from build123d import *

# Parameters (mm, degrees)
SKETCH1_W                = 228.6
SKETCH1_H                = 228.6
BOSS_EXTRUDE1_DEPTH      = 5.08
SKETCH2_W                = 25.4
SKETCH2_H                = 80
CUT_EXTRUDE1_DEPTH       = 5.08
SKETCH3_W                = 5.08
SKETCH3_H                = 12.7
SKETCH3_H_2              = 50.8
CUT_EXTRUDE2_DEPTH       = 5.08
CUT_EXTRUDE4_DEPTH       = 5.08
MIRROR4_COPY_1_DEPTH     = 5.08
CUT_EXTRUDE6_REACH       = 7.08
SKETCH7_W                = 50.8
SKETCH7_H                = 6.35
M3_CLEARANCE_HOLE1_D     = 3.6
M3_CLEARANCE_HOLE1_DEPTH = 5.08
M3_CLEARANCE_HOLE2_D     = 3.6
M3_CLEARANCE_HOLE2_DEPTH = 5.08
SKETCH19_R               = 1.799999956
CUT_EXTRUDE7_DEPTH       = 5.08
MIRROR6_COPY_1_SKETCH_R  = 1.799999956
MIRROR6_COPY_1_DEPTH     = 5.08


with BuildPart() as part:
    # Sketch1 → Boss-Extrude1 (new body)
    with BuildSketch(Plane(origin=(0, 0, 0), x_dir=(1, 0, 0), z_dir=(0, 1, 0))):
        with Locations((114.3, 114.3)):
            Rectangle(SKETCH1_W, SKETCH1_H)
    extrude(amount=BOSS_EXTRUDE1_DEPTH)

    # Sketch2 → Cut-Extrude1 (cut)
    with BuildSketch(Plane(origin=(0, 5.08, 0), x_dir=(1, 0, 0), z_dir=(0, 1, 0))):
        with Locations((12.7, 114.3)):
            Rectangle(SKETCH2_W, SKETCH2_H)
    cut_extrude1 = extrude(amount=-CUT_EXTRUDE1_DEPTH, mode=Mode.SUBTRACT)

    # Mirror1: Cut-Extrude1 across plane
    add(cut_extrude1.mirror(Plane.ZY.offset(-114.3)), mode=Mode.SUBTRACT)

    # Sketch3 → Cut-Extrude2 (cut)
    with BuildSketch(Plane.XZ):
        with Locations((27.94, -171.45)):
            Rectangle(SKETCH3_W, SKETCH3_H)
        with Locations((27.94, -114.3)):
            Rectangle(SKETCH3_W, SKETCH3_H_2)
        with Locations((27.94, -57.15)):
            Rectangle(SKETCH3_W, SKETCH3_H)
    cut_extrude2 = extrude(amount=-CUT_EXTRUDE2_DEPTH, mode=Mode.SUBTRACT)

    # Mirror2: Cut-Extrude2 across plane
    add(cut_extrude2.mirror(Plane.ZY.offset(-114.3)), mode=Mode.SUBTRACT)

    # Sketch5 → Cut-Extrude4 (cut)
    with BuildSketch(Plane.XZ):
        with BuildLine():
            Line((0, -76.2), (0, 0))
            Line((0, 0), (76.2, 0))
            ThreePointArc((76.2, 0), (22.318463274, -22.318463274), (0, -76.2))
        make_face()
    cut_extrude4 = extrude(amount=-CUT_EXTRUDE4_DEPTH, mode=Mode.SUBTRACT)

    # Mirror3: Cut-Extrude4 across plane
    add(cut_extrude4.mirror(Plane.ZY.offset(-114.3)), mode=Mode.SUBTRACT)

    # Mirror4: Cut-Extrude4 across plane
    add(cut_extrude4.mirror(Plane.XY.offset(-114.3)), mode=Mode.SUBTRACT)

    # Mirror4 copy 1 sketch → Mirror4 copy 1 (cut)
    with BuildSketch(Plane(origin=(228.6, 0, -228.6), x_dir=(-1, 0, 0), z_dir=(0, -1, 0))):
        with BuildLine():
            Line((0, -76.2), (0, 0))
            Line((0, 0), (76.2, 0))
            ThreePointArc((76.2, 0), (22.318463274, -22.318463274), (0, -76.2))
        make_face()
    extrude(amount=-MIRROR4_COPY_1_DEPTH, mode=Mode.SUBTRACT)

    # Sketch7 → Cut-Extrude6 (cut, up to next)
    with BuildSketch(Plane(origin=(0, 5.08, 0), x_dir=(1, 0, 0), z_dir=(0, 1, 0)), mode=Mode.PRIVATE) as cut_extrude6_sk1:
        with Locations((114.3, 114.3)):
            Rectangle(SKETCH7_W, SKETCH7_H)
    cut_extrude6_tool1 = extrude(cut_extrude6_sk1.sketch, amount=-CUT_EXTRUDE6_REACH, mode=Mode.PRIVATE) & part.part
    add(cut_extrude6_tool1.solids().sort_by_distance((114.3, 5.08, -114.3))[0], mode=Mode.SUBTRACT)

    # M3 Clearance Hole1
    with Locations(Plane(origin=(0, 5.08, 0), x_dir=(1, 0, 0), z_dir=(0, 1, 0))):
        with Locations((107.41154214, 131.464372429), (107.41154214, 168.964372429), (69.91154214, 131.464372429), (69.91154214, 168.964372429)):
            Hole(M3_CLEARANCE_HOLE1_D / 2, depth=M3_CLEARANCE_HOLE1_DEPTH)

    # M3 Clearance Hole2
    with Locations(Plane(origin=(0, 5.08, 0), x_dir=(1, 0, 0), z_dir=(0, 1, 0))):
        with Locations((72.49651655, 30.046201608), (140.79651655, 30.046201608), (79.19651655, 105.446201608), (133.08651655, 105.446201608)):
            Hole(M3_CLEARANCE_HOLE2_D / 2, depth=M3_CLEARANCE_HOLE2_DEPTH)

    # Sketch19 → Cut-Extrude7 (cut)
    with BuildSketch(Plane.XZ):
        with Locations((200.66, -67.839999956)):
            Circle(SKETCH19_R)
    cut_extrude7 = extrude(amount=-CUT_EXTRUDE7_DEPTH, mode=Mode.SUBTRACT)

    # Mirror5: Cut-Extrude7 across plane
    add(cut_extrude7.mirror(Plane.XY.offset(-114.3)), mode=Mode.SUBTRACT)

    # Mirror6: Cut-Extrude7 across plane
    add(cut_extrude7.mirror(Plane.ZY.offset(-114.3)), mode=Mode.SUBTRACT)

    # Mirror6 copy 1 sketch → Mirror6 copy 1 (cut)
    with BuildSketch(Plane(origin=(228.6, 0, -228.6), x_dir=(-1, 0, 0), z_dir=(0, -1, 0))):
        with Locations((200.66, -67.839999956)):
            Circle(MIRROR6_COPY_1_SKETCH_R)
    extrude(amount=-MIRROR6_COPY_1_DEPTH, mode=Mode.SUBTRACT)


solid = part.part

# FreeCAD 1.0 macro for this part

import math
import FreeCAD as App
import Part
import Sketcher
from FreeCAD import Vector
Q = App.Units.Quantity

doc = App.newDocument("Part")
body = doc.addObject("PartDesign::Body", "Body")

sketch1 = body.newObject("Sketcher::SketchObject", "Sketch")
sketch1.AttachmentSupport = (doc.getObject("XZ_Plane"), [""])
sketch1.MapMode = "FlatFace"
sketch1.addGeometry(Part.LineSegment(Vector(0, -228.6, 0), Vector(0, 0, 0)), False)
sketch1.addGeometry(Part.LineSegment(Vector(0, 0, 0), Vector(228.6, 0, 0)), False)
sketch1.addGeometry(Part.LineSegment(Vector(228.6, 0, 0), Vector(228.6, -228.6, 0)), False)
sketch1.addGeometry(Part.LineSegment(Vector(228.6, -228.6, 0), Vector(0, -228.6, 0)), False)
sketch1.addConstraint(Sketcher.Constraint("Coincident", 0, 2, 1, 1))
sketch1.addConstraint(Sketcher.Constraint("Coincident", 1, 2, 2, 1))
sketch1.addConstraint(Sketcher.Constraint("Coincident", 2, 2, 3, 1))
sketch1.addConstraint(Sketcher.Constraint("Coincident", 3, 2, 0, 1))
sketch1.addConstraint(Sketcher.Constraint("Vertical", 0))
sketch1.addConstraint(Sketcher.Constraint("Horizontal", 1))
sketch1.addConstraint(Sketcher.Constraint("Vertical", 2))
sketch1.addConstraint(Sketcher.Constraint("Horizontal", 3))
sketch1.addConstraint(Sketcher.Constraint("Coincident", 0, 2, -1, 1))
sketch1.addConstraint(Sketcher.Constraint("Equal", 3, 0))
sketch1.addConstraint(Sketcher.Constraint("DistanceX", 1, 1, 1, 2, Q("9 in")))
pad1 = body.newObject("PartDesign::Pad", "Pad")
pad1.Profile = sketch1
pad1.Length = Q("0.2 in")
pad1.Reversed = True

sketch2 = body.newObject("Sketcher::SketchObject", "Sketch001")
sketch2.AttachmentSupport = (doc.getObject("XZ_Plane"), [""])
sketch2.MapMode = "FlatFace"
sketch2.AttachmentOffset = App.Placement(Vector(0, 0, -0.2 * 25.4), App.Rotation())
sketch2.addGeometry(Part.LineSegment(Vector(0, -154.3, 0), Vector(0, -74.3, 0)), False)
sketch2.addGeometry(Part.LineSegment(Vector(0, -74.3, 0), Vector(25.4, -74.3, 0)), False)
sketch2.addGeometry(Part.LineSegment(Vector(25.4, -74.3, 0), Vector(25.4, -154.3, 0)), False)
sketch2.addGeometry(Part.LineSegment(Vector(25.4, -154.3, 0), Vector(0, -154.3, 0)), False)
sketch2.addConstraint(Sketcher.Constraint("Coincident", 0, 2, 1, 1))
sketch2.addConstraint(Sketcher.Constraint("Coincident", 1, 2, 2, 1))
sketch2.addConstraint(Sketcher.Constraint("Coincident", 2, 2, 3, 1))
sketch2.addConstraint(Sketcher.Constraint("Coincident", 3, 2, 0, 1))
sketch2.addConstraint(Sketcher.Constraint("Vertical", 0))
sketch2.addConstraint(Sketcher.Constraint("Horizontal", 1))
sketch2.addConstraint(Sketcher.Constraint("Vertical", 2))
sketch2.addConstraint(Sketcher.Constraint("Horizontal", 3))
sketch2.addConstraint(Sketcher.Constraint("PointOnObject", 0, 2, -2))
sketch2.addConstraint(Sketcher.Constraint("DistanceX", 1, 1, 1, 2, Q("1 in")))
sketch2.addConstraint(Sketcher.Constraint("DistanceY", 0, 1, 0, 2, Q("80 mm")))
sketch2.addConstraint(Sketcher.Constraint("DistanceY", 0, 2, -1, 1, Q("74.3 mm")))
pocket1 = body.newObject("PartDesign::Pocket", "Pocket")
pocket1.Profile = sketch2
pocket1.Length = Q("0.2 in")
pocket1.Reversed = True
doc.recompute()

datumplane = body.newObject("PartDesign::Plane", "DatumPlane")
datumplane.AttachmentSupport = (doc.getObject("YZ_Plane"), [""])
datumplane.MapMode = "FlatFace"
datumplane.AttachmentOffset = App.Placement(Vector(0, 0, 4.5 * 25.4), App.Rotation())
mirrored = body.newObject("PartDesign::Mirrored", "Mirrored")
mirrored.Originals = [pocket1]
mirrored.MirrorPlane = (datumplane, [""])
body.Tip = mirrored

sketch3 = body.newObject("Sketcher::SketchObject", "Sketch002")
sketch3.AttachmentSupport = (doc.getObject("XZ_Plane"), [""])
sketch3.MapMode = "FlatFace"
sketch3.addGeometry(Part.LineSegment(Vector(25.4, -165.1, 0), Vector(25.4, -177.8, 0)), False)
sketch3.addGeometry(Part.LineSegment(Vector(25.4, -177.8, 0), Vector(30.48, -177.8, 0)), False)
sketch3.addGeometry(Part.LineSegment(Vector(30.48, -177.8, 0), Vector(30.48, -165.1, 0)), False)
sketch3.addGeometry(Part.LineSegment(Vector(30.48, -165.1, 0), Vector(25.4, -165.1, 0)), False)
sketch3.addGeometry(Part.LineSegment(Vector(25.4, -88.9, 0), Vector(25.4, -139.7, 0)), False)
sketch3.addGeometry(Part.LineSegment(Vector(25.4, -139.7, 0), Vector(30.48, -139.7, 0)), False)
sketch3.addGeometry(Part.LineSegment(Vector(30.48, -139.7, 0), Vector(30.48, -88.9, 0)), False)
sketch3.addGeometry(Part.LineSegment(Vector(30.48, -88.9, 0), Vector(25.4, -88.9, 0)), False)
sketch3.addGeometry(Part.LineSegment(Vector(25.4, -50.8, 0), Vector(25.4, -63.5, 0)), False)
sketch3.addGeometry(Part.LineSegment(Vector(25.4, -63.5, 0), Vector(30.48, -63.5, 0)), False)
sketch3.addGeometry(Part.LineSegment(Vector(30.48, -63.5, 0), Vector(30.48, -50.8, 0)), False)
sketch3.addGeometry(Part.LineSegment(Vector(30.48, -50.8, 0), Vector(25.4, -50.8, 0)), False)
sketch3.addConstraint(Sketcher.Constraint("Coincident", 0, 2, 1, 1))
sketch3.addConstraint(Sketcher.Constraint("Coincident", 1, 2, 2, 1))
sketch3.addConstraint(Sketcher.Constraint("Coincident", 2, 2, 3, 1))
sketch3.addConstraint(Sketcher.Constraint("Coincident", 3, 2, 0, 1))
sketch3.addConstraint(Sketcher.Constraint("Coincident", 4, 2, 5, 1))
sketch3.addConstraint(Sketcher.Constraint("Coincident", 5, 2, 6, 1))
sketch3.addConstraint(Sketcher.Constraint("Coincident", 6, 2, 7, 1))
sketch3.addConstraint(Sketcher.Constraint("Coincident", 7, 2, 4, 1))
sketch3.addConstraint(Sketcher.Constraint("Coincident", 8, 2, 9, 1))
sketch3.addConstraint(Sketcher.Constraint("Coincident", 9, 2, 10, 1))
sketch3.addConstraint(Sketcher.Constraint("Coincident", 10, 2, 11, 1))
sketch3.addConstraint(Sketcher.Constraint("Coincident", 11, 2, 8, 1))
sketch3.addConstraint(Sketcher.Constraint("Vertical", 0))
sketch3.addConstraint(Sketcher.Constraint("Horizontal", 1))
sketch3.addConstraint(Sketcher.Constraint("Vertical", 2))
sketch3.addConstraint(Sketcher.Constraint("Horizontal", 3))
sketch3.addConstraint(Sketcher.Constraint("Vertical", 4))
sketch3.addConstraint(Sketcher.Constraint("Horizontal", 5))
sketch3.addConstraint(Sketcher.Constraint("Vertical", 6))
sketch3.addConstraint(Sketcher.Constraint("Horizontal", 7))
sketch3.addConstraint(Sketcher.Constraint("Vertical", 8))
sketch3.addConstraint(Sketcher.Constraint("Horizontal", 9))
sketch3.addConstraint(Sketcher.Constraint("Vertical", 10))
sketch3.addConstraint(Sketcher.Constraint("Horizontal", 11))
sketch3.addConstraint(Sketcher.Constraint("Vertical", 3, 2, 4, 2))
sketch3.addConstraint(Sketcher.Constraint("Vertical", 2, 2, 5, 2))
sketch3.addConstraint(Sketcher.Constraint("Vertical", 7, 2, 8, 2))
sketch3.addConstraint(Sketcher.Constraint("Vertical", 6, 2, 9, 2))
sketch3.addConstraint(Sketcher.Constraint("Equal", 2, 8))
sketch3.addConstraint(Sketcher.Constraint("DistanceY", 4, 2, 4, 1, Q("2 in")))
sketch3.addConstraint(Sketcher.Constraint("DistanceX", 1, 1, 1, 2, Q("0.2 in")))
sketch3.addConstraint(Sketcher.Constraint("DistanceY", 0, 2, 0, 1, Q("0.5 in")))
sketch3.addConstraint(Sketcher.Constraint("DistanceX", -1, 1, 0, 2, Q("1 in")))
sketch3.addConstraint(Sketcher.Constraint("DistanceY", 0, 2, -1, 1, Q("7 in")))
sketch3.addConstraint(Sketcher.Constraint("DistanceY", 10, 2, -1, 1, Q("2 in")))
sketch3.addConstraint(Sketcher.Constraint("DistanceY", 3, 2, 4, 2, Q("1 in")))
pocket2 = body.newObject("PartDesign::Pocket", "Pocket001")
pocket2.Profile = sketch3
pocket2.Length = Q("0.2 in")
doc.recompute()

datumplane2 = body.newObject("PartDesign::Plane", "DatumPlane001")
datumplane2.AttachmentSupport = (doc.getObject("YZ_Plane"), [""])
datumplane2.MapMode = "FlatFace"
datumplane2.AttachmentOffset = App.Placement(Vector(0, 0, 4.5 * 25.4), App.Rotation())
mirrored2 = body.newObject("PartDesign::Mirrored", "Mirrored001")
mirrored2.Originals = [pocket2]
mirrored2.MirrorPlane = (datumplane2, [""])
body.Tip = mirrored2

sketch4 = body.newObject("Sketcher::SketchObject", "Sketch003")
sketch4.AttachmentSupport = (doc.getObject("XZ_Plane"), [""])
sketch4.MapMode = "FlatFace"
sketch4.addGeometry(Part.LineSegment(Vector(0, 0, 0), Vector(0, -76.2, 0)), False)
sketch4.addGeometry(Part.ArcOfCircle(Part.Circle(Vector(76.2, -76.2, 0), Vector(0, 0, 1), 76.2), math.radians(90), math.radians(180)), False)
sketch4.addGeometry(Part.LineSegment(Vector(76.2, 0, 0), Vector(0, 0, 0)), False)
sketch4.addConstraint(Sketcher.Constraint("Tangent", 0, 2, 1, 2))
sketch4.addConstraint(Sketcher.Constraint("Tangent", 1, 1, 2, 1))
sketch4.addConstraint(Sketcher.Constraint("Coincident", 2, 2, 0, 1))
sketch4.addConstraint(Sketcher.Constraint("Vertical", 0))
sketch4.addConstraint(Sketcher.Constraint("Horizontal", 2))
sketch4.addConstraint(Sketcher.Constraint("Coincident", 2, 2, -1, 1))
sketch4.addConstraint(Sketcher.Constraint("Radius", 1, Q("3 in")))
pocket3 = body.newObject("PartDesign::Pocket", "Pocket002")
pocket3.Profile = sketch4
pocket3.Length = Q("0.2 in")
doc.recompute()

datumplane3 = body.newObject("PartDesign::Plane", "DatumPlane002")
datumplane3.AttachmentSupport = (doc.getObject("YZ_Plane"), [""])
datumplane3.MapMode = "FlatFace"
datumplane3.AttachmentOffset = App.Placement(Vector(0, 0, 4.5 * 25.4), App.Rotation())
mirrored3 = body.newObject("PartDesign::Mirrored", "Mirrored002")
mirrored3.Originals = [pocket3]
mirrored3.MirrorPlane = (datumplane3, [""])
body.Tip = mirrored3
doc.recompute()

datumplane4 = body.newObject("PartDesign::Plane", "DatumPlane003")
datumplane4.AttachmentSupport = (doc.getObject("XY_Plane"), [""])
datumplane4.MapMode = "FlatFace"
datumplane4.AttachmentOffset = App.Placement(Vector(0, 0, -4.5 * 25.4), App.Rotation())
mirrored4 = body.newObject("PartDesign::Mirrored", "Mirrored003")
mirrored4.Originals = [pocket3]
mirrored4.MirrorPlane = (datumplane4, [""])
body.Tip = mirrored4

sketch5 = body.newObject("Sketcher::SketchObject", "Sketch004")
sketch5.AttachmentSupport = (doc.getObject("XZ_Plane"), [""])
sketch5.MapMode = "FlatFace"
sketch5.addGeometry(Part.LineSegment(Vector(228.6, -228.6, 0), Vector(228.6, -152.4, 0)), False)
sketch5.addGeometry(Part.ArcOfCircle(Part.Circle(Vector(152.4, -152.4, 0), Vector(0, 0, 1), 76.2), math.radians(-90), math.radians(0)), False)
sketch5.addGeometry(Part.LineSegment(Vector(152.4, -228.6, 0), Vector(228.6, -228.6, 0)), False)
sketch5.addConstraint(Sketcher.Constraint("Tangent", 0, 2, 1, 2))
sketch5.addConstraint(Sketcher.Constraint("Tangent", 1, 1, 2, 1))
sketch5.addConstraint(Sketcher.Constraint("Coincident", 2, 2, 0, 1))
sketch5.addConstraint(Sketcher.Constraint("Vertical", 0))
sketch5.addConstraint(Sketcher.Constraint("Horizontal", 2))
sketch5.addConstraint(Sketcher.Constraint("Radius", 1, Q("3 in")))
sketch5.addConstraint(Sketcher.Constraint("DistanceX", -1, 1, 1, 3, Q("6 in")))
sketch5.addConstraint(Sketcher.Constraint("DistanceY", 1, 3, -1, 1, Q("6 in")))
pocket4 = body.newObject("PartDesign::Pocket", "Pocket003")
pocket4.Profile = sketch5
pocket4.Length = Q("0.2 in")

sketch6 = body.newObject("Sketcher::SketchObject", "Sketch005")
sketch6.AttachmentSupport = (doc.getObject("XZ_Plane"), [""])
sketch6.MapMode = "FlatFace"
sketch6.AttachmentOffset = App.Placement(Vector(0, 0, -0.2 * 25.4), App.Rotation())
sketch6.addGeometry(Part.LineSegment(Vector(88.9, -117.475, 0), Vector(88.9, -111.125, 0)), False)
sketch6.addGeometry(Part.LineSegment(Vector(88.9, -111.125, 0), Vector(139.7, -111.125, 0)), False)
sketch6.addGeometry(Part.LineSegment(Vector(139.7, -111.125, 0), Vector(139.7, -117.475, 0)), False)
sketch6.addGeometry(Part.LineSegment(Vector(139.7, -117.475, 0), Vector(88.9, -117.475, 0)), False)
sketch6.addConstraint(Sketcher.Constraint("Coincident", 0, 2, 1, 1))
sketch6.addConstraint(Sketcher.Constraint("Coincident", 1, 2, 2, 1))
sketch6.addConstraint(Sketcher.Constraint("Coincident", 2, 2, 3, 1))
sketch6.addConstraint(Sketcher.Constraint("Coincident", 3, 2, 0, 1))
sketch6.addConstraint(Sketcher.Constraint("Vertical", 0))
sketch6.addConstraint(Sketcher.Constraint("Horizontal", 1))
sketch6.addConstraint(Sketcher.Constraint("Vertical", 2))
sketch6.addConstraint(Sketcher.Constraint("Horizontal", 3))
sketch6.addConstraint(Sketcher.Constraint("DistanceX", 1, 1, 1, 2, Q("2 in")))
sketch6.addConstraint(Sketcher.Constraint("DistanceY", 0, 1, 0, 2, Q("0.25 in")))
sketch6.addConstraint(Sketcher.Constraint("DistanceX", -1, 1, 0, 2, Q("3.5 in")))
sketch6.addConstraint(Sketcher.Constraint("DistanceY", 0, 2, -1, 1, Q("4.375 in")))
pocket5 = body.newObject("PartDesign::Pocket", "Pocket004")
pocket5.Profile = sketch6
pocket5.Type = "UpToFirst"
pocket5.Reversed = True

sketch7 = body.newObject("Sketcher::SketchObject", "Sketch006")
sketch7.AttachmentSupport = (doc.getObject("XZ_Plane"), [""])
sketch7.MapMode = "FlatFace"
sketch7.AttachmentOffset = App.Placement(Vector(0, 0, -0.2 * 25.4), App.Rotation())
sketch7.addGeometry(Part.Circle(Vector(107.411542, -131.464372, 0), Vector(0, 0, 1), 1.8), False)
sketch7.addGeometry(Part.Circle(Vector(107.411542, -168.964372, 0), Vector(0, 0, 1), 1.8), False)
sketch7.addGeometry(Part.Circle(Vector(69.911542, -131.464372, 0), Vector(0, 0, 1), 1.8), False)
sketch7.addGeometry(Part.Circle(Vector(69.911542, -168.964372, 0), Vector(0, 0, 1), 1.8), False)
sketch7.addConstraint(Sketcher.Constraint("Equal", 0, 1))
sketch7.addConstraint(Sketcher.Constraint("Equal", 1, 2))
sketch7.addConstraint(Sketcher.Constraint("Equal", 2, 3))
sketch7.addConstraint(Sketcher.Constraint("Horizontal", 0, 3, 2, 3))
sketch7.addConstraint(Sketcher.Constraint("Horizontal", 1, 3, 3, 3))
sketch7.addConstraint(Sketcher.Constraint("Vertical", 0, 3, 1, 3))
sketch7.addConstraint(Sketcher.Constraint("Vertical", 2, 3, 3, 3))
sketch7.addConstraint(Sketcher.Constraint("Diameter", 0, Q("3.6 mm")))
sketch7.addConstraint(Sketcher.Constraint("DistanceY", 1, 3, 0, 3, Q("37.5 mm")))
sketch7.addConstraint(Sketcher.Constraint("DistanceX", 2, 3, 0, 3, Q("37.5 mm")))
sketch7.addConstraint(Sketcher.Constraint("DistanceX", -1, 1, 0, 3, Q("107.411542 mm")))
sketch7.addConstraint(Sketcher.Constraint("DistanceY", 0, 3, -1, 1, Q("131.464372 mm")))
doc.recompute()
hole = body.newObject("PartDesign::Hole", "Hole")
hole.Profile = sketch7
hole.ThreadType = "None"
hole.Diameter = 3.6
hole.DepthType = "Dimension"
hole.Depth = Q("0.2 in")
hole.DrillPoint = "Flat"
hole.Reversed = True

sketch8 = body.newObject("Sketcher::SketchObject", "Sketch007")
sketch8.AttachmentSupport = (doc.getObject("XZ_Plane"), [""])
sketch8.MapMode = "FlatFace"
sketch8.AttachmentOffset = App.Placement(Vector(0, 0, -0.2 * 25.4), App.Rotation())
sketch8.addGeometry(Part.Circle(Vector(72.496517, -30.046202, 0), Vector(0, 0, 1), 1.8), False)
sketch8.addGeometry(Part.Circle(Vector(140.796517, -30.046202, 0), Vector(0, 0, 1), 1.8), False)
sketch8.addGeometry(Part.Circle(Vector(79.196517, -105.446202, 0), Vector(0, 0, 1), 1.8), False)
sketch8.addGeometry(Part.Circle(Vector(133.086517, -105.446202, 0), Vector(0, 0, 1), 1.8), False)
sketch8.addConstraint(Sketcher.Constraint("Equal", 0, 1))
sketch8.addConstraint(Sketcher.Constraint("Equal", 1, 2))
sketch8.addConstraint(Sketcher.Constraint("Equal", 2, 3))
sketch8.addConstraint(Sketcher.Constraint("Horizontal", 0, 3, 1, 3))
sketch8.addConstraint(Sketcher.Constraint("Horizontal", 2, 3, 3, 3))
sketch8.addConstraint(Sketcher.Constraint("Diameter", 0, Q("3.6 mm")))
sketch8.addConstraint(Sketcher.Constraint("DistanceY", 0, 3, -1, 1, Q("30.046202 mm")))
sketch8.addConstraint(Sketcher.Constraint("DistanceY", 2, 3, -1, 1, Q("105.446202 mm")))
sketch8.addConstraint(Sketcher.Constraint("DistanceX", 0, 3, 1, 3, Q("68.3 mm")))
sketch8.addConstraint(Sketcher.Constraint("DistanceX", 0, 3, 2, 3, Q("6.7 mm")))
sketch8.addConstraint(Sketcher.Constraint("DistanceX", 2, 3, 3, 3, Q("53.89 mm")))
sketch8.addConstraint(Sketcher.Constraint("DistanceX", -1, 1, 0, 3, Q("72.496517 mm")))
doc.recompute()
hole2 = body.newObject("PartDesign::Hole", "Hole001")
hole2.Profile = sketch8
hole2.ThreadType = "None"
hole2.Diameter = 3.6
hole2.DepthType = "Dimension"
hole2.Depth = Q("0.2 in")
hole2.DrillPoint = "Flat"
hole2.Reversed = True

sketch9 = body.newObject("Sketcher::SketchObject", "Sketch008")
sketch9.AttachmentSupport = (doc.getObject("XZ_Plane"), [""])
sketch9.MapMode = "FlatFace"
sketch9.addGeometry(Part.Circle(Vector(200.66, -67.84, 0), Vector(0, 0, 1), 1.8), False)
sketch9.addConstraint(Sketcher.Constraint("DistanceX", -1, 1, 0, 3, Q("7.9 in")))
sketch9.addConstraint(Sketcher.Constraint("Diameter", 0, Q("3.6 mm")))
sketch9.addConstraint(Sketcher.Constraint("DistanceY", 0, 3, -1, 1, Q("67.84 mm")))
pocket6 = body.newObject("PartDesign::Pocket", "Pocket005")
pocket6.Profile = sketch9
pocket6.Length = Q("0.2 in")
doc.recompute()

datumplane5 = body.newObject("PartDesign::Plane", "DatumPlane004")
datumplane5.AttachmentSupport = (doc.getObject("XY_Plane"), [""])
datumplane5.MapMode = "FlatFace"
datumplane5.AttachmentOffset = App.Placement(Vector(0, 0, -4.5 * 25.4), App.Rotation())
mirrored5 = body.newObject("PartDesign::Mirrored", "Mirrored004")
mirrored5.Originals = [pocket6]
mirrored5.MirrorPlane = (datumplane5, [""])
body.Tip = mirrored5
doc.recompute()

datumplane6 = body.newObject("PartDesign::Plane", "DatumPlane005")
datumplane6.AttachmentSupport = (doc.getObject("YZ_Plane"), [""])
datumplane6.MapMode = "FlatFace"
datumplane6.AttachmentOffset = App.Placement(Vector(0, 0, 4.5 * 25.4), App.Rotation())
mirrored6 = body.newObject("PartDesign::Mirrored", "Mirrored005")
mirrored6.Originals = [pocket6]
mirrored6.MirrorPlane = (datumplane6, [""])
body.Tip = mirrored6

sketch10 = body.newObject("Sketcher::SketchObject", "Sketch009")
sketch10.AttachmentSupport = (doc.getObject("XZ_Plane"), [""])
sketch10.MapMode = "FlatFace"
sketch10.addGeometry(Part.Circle(Vector(27.94, -160.76, 0), Vector(0, 0, 1), 1.8), False)
sketch10.addConstraint(Sketcher.Constraint("DistanceX", -1, 1, 0, 3, Q("1.1 in")))
sketch10.addConstraint(Sketcher.Constraint("Diameter", 0, Q("3.6 mm")))
sketch10.addConstraint(Sketcher.Constraint("DistanceY", 0, 3, -1, 1, Q("160.76 mm")))
pocket7 = body.newObject("PartDesign::Pocket", "Pocket006")
pocket7.Profile = sketch10
pocket7.Length = Q("0.2 in")

doc.recompute()
